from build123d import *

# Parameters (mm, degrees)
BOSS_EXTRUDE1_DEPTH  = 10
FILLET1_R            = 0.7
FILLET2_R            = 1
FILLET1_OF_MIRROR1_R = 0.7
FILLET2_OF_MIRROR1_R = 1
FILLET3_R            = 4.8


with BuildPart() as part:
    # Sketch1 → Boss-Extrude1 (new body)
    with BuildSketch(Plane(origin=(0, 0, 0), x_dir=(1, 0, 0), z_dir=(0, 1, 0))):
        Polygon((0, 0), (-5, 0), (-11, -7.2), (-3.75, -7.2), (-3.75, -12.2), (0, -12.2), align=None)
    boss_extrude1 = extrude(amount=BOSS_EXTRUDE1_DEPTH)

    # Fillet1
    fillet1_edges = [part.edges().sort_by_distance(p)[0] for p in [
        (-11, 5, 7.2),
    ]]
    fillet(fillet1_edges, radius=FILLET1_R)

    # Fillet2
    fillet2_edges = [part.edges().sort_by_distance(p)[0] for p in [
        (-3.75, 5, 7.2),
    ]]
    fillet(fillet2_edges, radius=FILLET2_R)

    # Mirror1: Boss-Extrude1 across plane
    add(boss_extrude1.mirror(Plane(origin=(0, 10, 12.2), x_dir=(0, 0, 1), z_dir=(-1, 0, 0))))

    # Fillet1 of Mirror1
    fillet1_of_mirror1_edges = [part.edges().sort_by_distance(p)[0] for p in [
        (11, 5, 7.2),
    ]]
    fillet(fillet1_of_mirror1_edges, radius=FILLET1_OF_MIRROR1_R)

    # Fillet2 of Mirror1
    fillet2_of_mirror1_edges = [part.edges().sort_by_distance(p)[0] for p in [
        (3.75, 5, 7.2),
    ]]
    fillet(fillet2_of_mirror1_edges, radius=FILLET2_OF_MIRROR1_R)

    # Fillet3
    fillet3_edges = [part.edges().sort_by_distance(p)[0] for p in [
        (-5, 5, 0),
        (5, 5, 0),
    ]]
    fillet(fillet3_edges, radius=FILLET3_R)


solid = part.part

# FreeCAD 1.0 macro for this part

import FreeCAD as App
import Part
import Sketcher

V = App.Vector
Q = App.Units.Quantity


def edges_at(feature, points):
    """Names of the edges that pass closest to the given points."""
    edges = feature.Shape.Edges
    near = lambda p: min(range(len(edges)), key=lambda i: edges[i].distToShape(Part.Vertex(*p))[0])
    return sorted({f"Edge{near(p) + 1}" for p in points})


def add_polygon(sketch, points):
    """Adds a closed chain of lines whose ends are joined by coincident constraints."""
    first, n = sketch.GeometryCount, len(points)
    for a, b in zip(points, points[1:] + points[:1]):
        sketch.addGeometry(Part.LineSegment(App.Vector(*a, 0), App.Vector(*b, 0)), False)
    for i in range(n):
        sketch.addConstraint(Sketcher.Constraint("Coincident", first + i, 2, first + (i + 1) % n, 1))

doc = App.newDocument("Part")
body = doc.addObject("PartDesign::Body", "Body")

sketch1 = body.newObject("Sketcher::SketchObject", "Sketch")
sketch1.AttachmentSupport = (doc.getObject("XZ_Plane"), [""])
sketch1.MapMode = "FlatFace"
add_polygon(sketch1, [(0, 0), (-5, 0), (-11, 7.2), (-3.8, 7.2), (-3.8, 12.2), (0, 12.2)])
sketch1.addConstraint(Sketcher.Constraint("Horizontal", 0))
sketch1.addConstraint(Sketcher.Constraint("Horizontal", 2))
sketch1.addConstraint(Sketcher.Constraint("Vertical", 3))
sketch1.addConstraint(Sketcher.Constraint("Horizontal", 4))
sketch1.addConstraint(Sketcher.Constraint("Vertical", 5))
sketch1.addConstraint(Sketcher.Constraint("Coincident", 5, 2, -1, 1))
sketch1.addConstraint(Sketcher.Constraint("Equal", 0, 3))
sketch1.addConstraint(Sketcher.Constraint("DistanceX", 0, 2, 0, 1, Q("5 mm")))
sketch1.addConstraint(Sketcher.Constraint("DistanceY", 5, 2, 5, 1, Q("12.2 mm")))
sketch1.addConstraint(Sketcher.Constraint("DistanceX", 1, 2, -1, 1, Q("11 mm")))
sketch1.addConstraint(Sketcher.Constraint("DistanceX", 2, 1, 2, 2, Q("7.25 mm")))
pad1 = body.newObject("PartDesign::Pad", "Pad")
pad1.Profile = sketch1
pad1.Length = 10
pad1.Reversed = True
doc.recompute()

fillet = body.newObject("PartDesign::Fillet", "Fillet")
fillet.Base = (pad1, edges_at(pad1, [(-11, 5, 7.2)]))
fillet.Radius = 0.7
doc.recompute()

fillet2 = body.newObject("PartDesign::Fillet", "Fillet001")
fillet2.Base = (fillet, edges_at(fillet, [(-3.75, 5, 7.2)]))
fillet2.Radius = 1
doc.recompute()

mirrored = body.newObject("PartDesign::Mirrored", "Mirrored")
mirrored.Originals = [pad1]
mirrored.MirrorPlane = (doc.getObject("YZ_Plane"), [""])
body.Tip = mirrored
doc.recompute()

fillet3 = body.newObject("PartDesign::Fillet", "Fillet002")
fillet3.Base = (mirrored, edges_at(mirrored, [(11, 5, 7.2)]))
fillet3.Radius = 0.7
doc.recompute()

fillet4 = body.newObject("PartDesign::Fillet", "Fillet003")
fillet4.Base = (fillet3, edges_at(fillet3, [(3.75, 5, 7.2)]))
fillet4.Radius = 1
doc.recompute()

fillet5 = body.newObject("PartDesign::Fillet", "Fillet004")
fillet5.Base = (fillet4, edges_at(fillet4, [(-5, 5, 0), (5, 5, 0)]))
fillet5.Radius = 4.8

doc.recompute()
